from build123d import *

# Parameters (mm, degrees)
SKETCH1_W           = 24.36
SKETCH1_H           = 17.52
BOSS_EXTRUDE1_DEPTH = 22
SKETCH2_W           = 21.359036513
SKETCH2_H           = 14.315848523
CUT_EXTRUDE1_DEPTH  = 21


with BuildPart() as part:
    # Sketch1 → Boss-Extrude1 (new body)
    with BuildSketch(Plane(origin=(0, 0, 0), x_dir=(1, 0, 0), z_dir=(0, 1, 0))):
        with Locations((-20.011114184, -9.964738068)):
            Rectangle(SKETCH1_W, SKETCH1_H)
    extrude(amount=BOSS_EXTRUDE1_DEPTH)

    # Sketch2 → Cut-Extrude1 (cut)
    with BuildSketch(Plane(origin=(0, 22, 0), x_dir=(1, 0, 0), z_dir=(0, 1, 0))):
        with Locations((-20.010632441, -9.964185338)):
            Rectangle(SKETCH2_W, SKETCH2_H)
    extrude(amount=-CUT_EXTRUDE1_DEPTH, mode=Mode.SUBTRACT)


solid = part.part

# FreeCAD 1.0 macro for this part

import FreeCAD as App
import Part
import Sketcher

V = App.Vector
Q = App.Units.Quantity


def add_polygon(sketch, points):
    """Adds a closed chain of lines whose ends are joined by coincident constraints."""
    first, n = sketch.GeometryCount, len(points)
    for a, b in zip(points, points[1:] + points[:1]):
        sketch.addGeometry(Part.LineSegment(App.Vector(*a, 0), App.Vector(*b, 0)), False)
    for i in range(n):
        sketch.addConstraint(Sketcher.Constraint("Coincident", first + i, 2, first + (i + 1) % n, 1))

doc = App.newDocument("Part")
params = doc.addObject("Spreadsheet::Sheet", "Params")
for row, (alias, value) in enumerate([
    ("sketch1_width", "24.36 mm"),
    ("sketch1_height", "17.52 mm"),
    ("pad1_length", "22 mm"),
    ("pocket1_length", "21 mm"),
], start=1):
    params.set(f"A{row}", alias)
    params.set(f"B{row}", "=" + value)
    params.setAlias(f"B{row}", alias)

body = doc.addObject("PartDesign::Body", "Body")

# Sketch on XZ plane
sketch1 = body.newObject("Sketcher::SketchObject", "Sketch")
sketch1.AttachmentSupport = (doc.getObject("XZ_Plane"), [""])
sketch1.MapMode = "FlatFace"
add_polygon(sketch1, [(-32, 1), (-32, 19), (-8, 19), (-8, 1)])  # lines 0-3
sketch1.addConstraint([
    Sketcher.Constraint("Vertical", 0),
    Sketcher.Constraint("Horizontal", 1),
    Sketcher.Constraint("Vertical", 2),
    Sketcher.Constraint("Horizontal", 3),
    Sketcher.Constraint("DistanceX", 1, 1, 1, 2, Q("24.36 mm")),
    Sketcher.Constraint("DistanceY", 0, 1, 0, 2, Q("17.52 mm")),
    Sketcher.Constraint("DistanceY", -1, 1, 0, 2, Q("18.724738 mm")),
    Sketcher.Constraint("DistanceX", 0, 2, -1, 1, Q("32.191114 mm")),
])
sketch1.setExpression("Constraints[8]", "Params.sketch1_width")
sketch1.setExpression("Constraints[9]", "Params.sketch1_height")
pad1 = body.newObject("PartDesign::Pad", "Pad")
pad1.Profile = sketch1
pad1.setExpression("Length", "Params.pad1_length")
pad1.Reversed = True

# Sketch on XZ plane
sketch2 = body.newObject("Sketcher::SketchObject", "Sketch001")
sketch2.AttachmentSupport = (doc.getObject("XZ_Plane"), [""])
sketch2.MapMode = "FlatFace"
sketch2.AttachmentOffset = App.Placement(V(0, 0, -22), App.Rotation())
add_polygon(sketch2, [(-31, 3), (-31, 17), (-9, 17), (-9, 3)])  # lines 0-3
sketch2.addConstraint([
    Sketcher.Constraint("Vertical", 0),
    Sketcher.Constraint("Horizontal", 1),
    Sketcher.Constraint("Vertical", 2),
    Sketcher.Constraint("Horizontal", 3),
    Sketcher.Constraint("DistanceY", 0, 1, 0, 2, Q("14.315849 mm")),
    Sketcher.Constraint("DistanceX", 1, 1, 1, 2, Q("21.359037 mm")),
    Sketcher.Constraint("DistanceX", 0, 2, -1, 1, Q("30.690151 mm")),
    Sketcher.Constraint("DistanceY", -1, 1, 0, 2, Q("17.12211 mm")),
])
pocket1 = body.newObject("PartDesign::Pocket", "Pocket")
pocket1.Profile = sketch2
pocket1.setExpression("Length", "Params.pocket1_length")
pocket1.Reversed = True

doc.recompute()
